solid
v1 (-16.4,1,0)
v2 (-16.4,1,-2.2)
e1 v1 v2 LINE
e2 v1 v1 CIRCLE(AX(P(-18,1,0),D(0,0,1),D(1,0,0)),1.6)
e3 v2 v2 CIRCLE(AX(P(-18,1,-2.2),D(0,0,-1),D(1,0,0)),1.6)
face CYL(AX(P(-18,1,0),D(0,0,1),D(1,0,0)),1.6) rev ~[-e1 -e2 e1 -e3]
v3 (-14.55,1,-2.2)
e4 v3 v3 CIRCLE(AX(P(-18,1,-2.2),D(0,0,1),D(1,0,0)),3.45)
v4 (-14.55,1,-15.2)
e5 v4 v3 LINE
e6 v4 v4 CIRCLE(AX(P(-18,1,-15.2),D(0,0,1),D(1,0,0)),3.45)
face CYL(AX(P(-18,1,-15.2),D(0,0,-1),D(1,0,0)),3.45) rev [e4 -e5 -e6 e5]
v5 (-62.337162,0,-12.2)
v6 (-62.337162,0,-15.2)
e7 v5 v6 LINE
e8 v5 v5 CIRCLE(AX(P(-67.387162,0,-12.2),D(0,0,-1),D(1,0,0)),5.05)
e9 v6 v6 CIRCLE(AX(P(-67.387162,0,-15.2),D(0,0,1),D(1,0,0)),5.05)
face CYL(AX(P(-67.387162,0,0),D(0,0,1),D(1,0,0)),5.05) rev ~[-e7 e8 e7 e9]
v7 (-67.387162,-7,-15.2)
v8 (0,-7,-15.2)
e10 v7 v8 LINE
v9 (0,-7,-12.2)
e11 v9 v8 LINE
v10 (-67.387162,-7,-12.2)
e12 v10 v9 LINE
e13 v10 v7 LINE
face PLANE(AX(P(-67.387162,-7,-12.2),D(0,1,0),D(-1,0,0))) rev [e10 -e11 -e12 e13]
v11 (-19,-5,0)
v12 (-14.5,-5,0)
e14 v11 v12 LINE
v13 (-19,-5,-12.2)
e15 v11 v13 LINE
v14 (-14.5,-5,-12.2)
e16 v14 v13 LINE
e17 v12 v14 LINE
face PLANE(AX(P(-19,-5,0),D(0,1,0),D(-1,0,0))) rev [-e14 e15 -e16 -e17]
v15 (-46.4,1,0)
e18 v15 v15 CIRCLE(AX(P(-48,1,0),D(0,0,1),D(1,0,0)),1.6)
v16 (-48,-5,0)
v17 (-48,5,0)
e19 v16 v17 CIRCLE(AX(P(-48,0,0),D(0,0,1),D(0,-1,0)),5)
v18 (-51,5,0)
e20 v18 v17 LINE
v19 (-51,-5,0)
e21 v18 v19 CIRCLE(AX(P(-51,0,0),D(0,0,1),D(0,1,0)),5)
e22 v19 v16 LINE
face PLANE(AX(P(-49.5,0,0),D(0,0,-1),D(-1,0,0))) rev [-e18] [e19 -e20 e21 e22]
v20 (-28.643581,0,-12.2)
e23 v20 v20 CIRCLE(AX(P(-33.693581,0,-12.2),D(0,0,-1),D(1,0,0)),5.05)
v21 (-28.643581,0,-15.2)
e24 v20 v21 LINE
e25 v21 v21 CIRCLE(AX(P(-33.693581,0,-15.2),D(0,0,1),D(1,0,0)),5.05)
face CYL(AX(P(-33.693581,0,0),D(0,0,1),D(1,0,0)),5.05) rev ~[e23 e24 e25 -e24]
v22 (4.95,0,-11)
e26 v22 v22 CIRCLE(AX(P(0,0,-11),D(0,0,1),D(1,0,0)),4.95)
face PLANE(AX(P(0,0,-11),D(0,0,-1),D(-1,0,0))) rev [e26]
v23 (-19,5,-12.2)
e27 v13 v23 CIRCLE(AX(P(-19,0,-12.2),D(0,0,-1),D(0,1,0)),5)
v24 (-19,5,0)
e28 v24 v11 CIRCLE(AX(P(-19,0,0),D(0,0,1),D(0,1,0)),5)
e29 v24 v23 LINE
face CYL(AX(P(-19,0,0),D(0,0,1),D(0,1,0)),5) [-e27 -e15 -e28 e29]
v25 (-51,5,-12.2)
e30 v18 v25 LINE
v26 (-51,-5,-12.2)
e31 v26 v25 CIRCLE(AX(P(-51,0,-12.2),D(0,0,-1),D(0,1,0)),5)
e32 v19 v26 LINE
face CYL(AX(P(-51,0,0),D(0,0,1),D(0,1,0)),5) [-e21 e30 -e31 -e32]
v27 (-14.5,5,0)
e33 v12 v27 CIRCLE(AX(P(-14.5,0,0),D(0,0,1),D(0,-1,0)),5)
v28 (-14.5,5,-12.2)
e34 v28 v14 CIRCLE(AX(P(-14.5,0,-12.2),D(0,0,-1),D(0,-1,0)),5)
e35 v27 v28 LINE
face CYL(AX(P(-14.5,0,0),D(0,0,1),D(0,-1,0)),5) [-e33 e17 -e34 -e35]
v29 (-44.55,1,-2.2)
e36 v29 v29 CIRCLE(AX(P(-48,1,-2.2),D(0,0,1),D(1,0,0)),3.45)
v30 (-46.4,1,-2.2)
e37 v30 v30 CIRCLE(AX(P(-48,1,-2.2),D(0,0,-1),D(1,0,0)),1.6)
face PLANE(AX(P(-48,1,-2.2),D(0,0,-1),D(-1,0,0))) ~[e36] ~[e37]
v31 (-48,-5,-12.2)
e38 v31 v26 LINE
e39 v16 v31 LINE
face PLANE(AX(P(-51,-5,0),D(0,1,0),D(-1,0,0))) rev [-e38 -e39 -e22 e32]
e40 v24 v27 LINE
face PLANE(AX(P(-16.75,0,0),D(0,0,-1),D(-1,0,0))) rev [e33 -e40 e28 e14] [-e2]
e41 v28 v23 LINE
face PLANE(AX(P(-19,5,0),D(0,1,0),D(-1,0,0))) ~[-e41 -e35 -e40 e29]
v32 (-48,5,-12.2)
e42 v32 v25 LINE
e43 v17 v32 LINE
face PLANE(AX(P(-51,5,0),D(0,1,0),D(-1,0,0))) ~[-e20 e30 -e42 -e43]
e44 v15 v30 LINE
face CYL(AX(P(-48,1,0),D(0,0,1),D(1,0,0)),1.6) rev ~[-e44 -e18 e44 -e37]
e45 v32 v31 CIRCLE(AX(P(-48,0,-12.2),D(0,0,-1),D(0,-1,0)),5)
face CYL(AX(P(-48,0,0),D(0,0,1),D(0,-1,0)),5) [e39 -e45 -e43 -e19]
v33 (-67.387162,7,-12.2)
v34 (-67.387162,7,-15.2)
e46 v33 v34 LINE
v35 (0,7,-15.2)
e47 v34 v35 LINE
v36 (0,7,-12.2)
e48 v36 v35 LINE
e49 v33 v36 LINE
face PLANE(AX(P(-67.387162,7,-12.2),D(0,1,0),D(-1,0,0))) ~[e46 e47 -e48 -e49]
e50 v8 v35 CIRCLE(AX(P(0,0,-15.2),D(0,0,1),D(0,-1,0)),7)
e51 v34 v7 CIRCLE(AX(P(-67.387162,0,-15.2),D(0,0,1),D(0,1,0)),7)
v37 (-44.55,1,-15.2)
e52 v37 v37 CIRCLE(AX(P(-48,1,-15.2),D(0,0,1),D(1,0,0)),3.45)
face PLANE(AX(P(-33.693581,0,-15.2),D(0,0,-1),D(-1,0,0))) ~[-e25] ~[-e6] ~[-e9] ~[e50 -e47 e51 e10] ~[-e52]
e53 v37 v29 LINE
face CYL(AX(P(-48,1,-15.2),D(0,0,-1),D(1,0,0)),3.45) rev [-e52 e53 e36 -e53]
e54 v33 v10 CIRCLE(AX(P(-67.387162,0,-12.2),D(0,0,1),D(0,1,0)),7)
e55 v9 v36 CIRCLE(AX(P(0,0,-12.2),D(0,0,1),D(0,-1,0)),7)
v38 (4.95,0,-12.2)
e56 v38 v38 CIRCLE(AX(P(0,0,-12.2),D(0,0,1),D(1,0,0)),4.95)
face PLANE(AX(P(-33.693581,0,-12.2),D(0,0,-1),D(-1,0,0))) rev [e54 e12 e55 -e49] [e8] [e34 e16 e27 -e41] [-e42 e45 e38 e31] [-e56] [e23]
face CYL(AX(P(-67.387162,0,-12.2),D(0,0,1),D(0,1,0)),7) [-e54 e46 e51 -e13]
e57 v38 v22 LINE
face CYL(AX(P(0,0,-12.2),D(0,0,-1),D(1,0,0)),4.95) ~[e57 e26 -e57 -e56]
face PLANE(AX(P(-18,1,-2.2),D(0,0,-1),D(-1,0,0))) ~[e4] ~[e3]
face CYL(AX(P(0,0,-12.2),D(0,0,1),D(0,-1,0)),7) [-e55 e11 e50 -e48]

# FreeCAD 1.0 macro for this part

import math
import FreeCAD as App
import Part
import Sketcher

doc = App.newDocument("Part")
body = doc.addObject("PartDesign::Body", "Body")

sketch1 = body.newObject("Sketcher::SketchObject", "Sketch")
sketch1.AttachmentSupport = (doc.getObject("XY_Plane"), [""])
sketch1.MapMode = "FlatFace"
sketch1.AttachmentOffset = App.Placement(App.Vector(0, 0, 12.2), App.Rotation())
sketch1.addGeometry(Part.ArcOfCircle(Part.Circle(App.Vector(-67, 0, 0), App.Vector(0, 0, 1), 7), math.radians(90), math.radians(270)), False)
sketch1.addGeometry(Part.LineSegment(App.Vector(-67, -7, 0), App.Vector(0, -7, 0)), False)
sketch1.addGeometry(Part.ArcOfCircle(Part.Circle(App.Vector(0, 0, 0), App.Vector(0, 0, 1), 7), math.radians(-90), math.radians(90)), False)
sketch1.addGeometry(Part.LineSegment(App.Vector(0, 7, 0), App.Vector(-67, 7, 0)), False)
sketch1.addConstraint(Sketcher.Constraint("Tangent", 0, 2, 1, 1))
sketch1.addConstraint(Sketcher.Constraint("Tangent", 1, 2, 2, 1))
sketch1.addConstraint(Sketcher.Constraint("Tangent", 2, 2, 3, 1))
sketch1.addConstraint(Sketcher.Constraint("Tangent", 3, 2, 0, 1))
sketch1.addConstraint(Sketcher.Constraint("Horizontal", 1))
sketch1.addConstraint(Sketcher.Constraint("Horizontal", 3))
sketch1.addConstraint(Sketcher.Constraint("Coincident", 2, 3, -1, 1))
sketch1.addConstraint(Sketcher.Constraint("Radius", 0, 7.0))
sketch1.addConstraint(Sketcher.Constraint("DistanceX", 1, 1, 1, 2, 67.387162))
pad1 = body.newObject("PartDesign::Pad", "Pad")
pad1.Profile = sketch1
pad1.Length = 3

sketch2 = body.newObject("Sketcher::SketchObject", "Sketch001")
sketch2.AttachmentSupport = (doc.getObject("XY_Plane"), [""])
sketch2.MapMode = "FlatFace"
sketch2.addGeometry(Part.ArcOfCircle(Part.Circle(App.Vector(-19, 0, 0), App.Vector(0, 0, 1), 5), math.radians(90), math.radians(270)), False)
sketch2.addGeometry(Part.LineSegment(App.Vector(-19, -5, 0), App.Vector(-14.5, -5, 0)), False)
sketch2.addGeometry(Part.ArcOfCircle(Part.Circle(App.Vector(-14.5, 0, 0), App.Vector(0, 0, 1), 5), math.radians(-90), math.radians(90)), False)
sketch2.addGeometry(Part.LineSegment(App.Vector(-14.5, 5, 0), App.Vector(-19, 5, 0)), False)
sketch2.addGeometry(Part.ArcOfCircle(Part.Circle(App.Vector(-51, 0, 0), App.Vector(0, 0, 1), 5), math.radians(90), math.radians(270)), False)
sketch2.addGeometry(Part.LineSegment(App.Vector(-51, -5, 0), App.Vector(-48, -5, 0)), False)
sketch2.addGeometry(Part.ArcOfCircle(Part.Circle(App.Vector(-48, 0, 0), App.Vector(0, 0, 1), 5), math.radians(-90), math.radians(90)), False)
sketch2.addGeometry(Part.LineSegment(App.Vector(-48, 5, 0), App.Vector(-51, 5, 0)), False)
sketch2.addConstraint(Sketcher.Constraint("Tangent", 0, 2, 1, 1))
sketch2.addConstraint(Sketcher.Constraint("Tangent", 1, 2, 2, 1))
sketch2.addConstraint(Sketcher.Constraint("Tangent", 2, 2, 3, 1))
sketch2.addConstraint(Sketcher.Constraint("Tangent", 3, 2, 0, 1))
sketch2.addConstraint(Sketcher.Constraint("Tangent", 4, 2, 5, 1))
sketch2.addConstraint(Sketcher.Constraint("Tangent", 5, 2, 6, 1))
sketch2.addConstraint(Sketcher.Constraint("Tangent", 6, 2, 7, 1))
sketch2.addConstraint(Sketcher.Constraint("Tangent", 7, 2, 4, 1))
sketch2.addConstraint(Sketcher.Constraint("Horizontal", 1))
sketch2.addConstraint(Sketcher.Constraint("Horizontal", 3))
sketch2.addConstraint(Sketcher.Constraint("Horizontal", 5))
sketch2.addConstraint(Sketcher.Constraint("Horizontal", 7))
sketch2.addConstraint(Sketcher.Constraint("Equal", 2, 4))
sketch2.addConstraint(Sketcher.Constraint("PointOnObject", 0, 3, -1))
sketch2.addConstraint(Sketcher.Constraint("PointOnObject", 4, 3, -1))
sketch2.addConstraint(Sketcher.Constraint("Radius", 0, 5.0))
sketch2.addConstraint(Sketcher.Constraint("DistanceX", 5, 1, 5, 2, 3.0))
sketch2.addConstraint(Sketcher.Constraint("DistanceX", 1, 1, 1, 2, 4.5))
sketch2.addConstraint(Sketcher.Constraint("DistanceX", 0, 3, -1, 1, 19.0))
sketch2.addConstraint(Sketcher.Constraint("DistanceX", 4, 3, -1, 1, 51.0))
pad2 = body.newObject("PartDesign::Pad", "Pad001")
pad2.Profile = sketch2
pad2.Length = 15.2

sketch3 = body.newObject("Sketcher::SketchObject", "Sketch002")
sketch3.AttachmentSupport = (doc.getObject("XY_Plane"), [""])
sketch3.MapMode = "FlatFace"
sketch3.addGeometry(Part.Circle(App.Vector(-33.7, 0, 0), App.Vector(0, 0, 1), 5), False)
sketch3.addGeometry(Part.Circle(App.Vector(-67.4, 0, 0), App.Vector(0, 0, 1), 5), False)
sketch3.addGeometry(Part.Circle(App.Vector(-18, 1, 0), App.Vector(0, 0, 1), 1.6), False)
sketch3.addGeometry(Part.Circle(App.Vector(-48, 1, 0), App.Vector(0, 0, 1), 1.6), False)
sketch3.addConstraint(Sketcher.Constraint("Equal", 0, 1))
sketch3.addConstraint(Sketcher.Constraint("Equal", 2, 3))
sketch3.addConstraint(Sketcher.Constraint("PointOnObject", 0, 3, -1))
sketch3.addConstraint(Sketcher.Constraint("PointOnObject", 1, 3, -1))
sketch3.addConstraint(Sketcher.Constraint("Horizontal", 2, 3, 3, 3))
sketch3.addConstraint(Sketcher.Constraint("Diameter", 0, 10.1))
sketch3.addConstraint(Sketcher.Constraint("Diameter", 2, 3.2))
sketch3.addConstraint(Sketcher.Constraint("DistanceX", 2, 3, -1, 1, 18.0))
sketch3.addConstraint(Sketcher.Constraint("DistanceY", -1, 1, 2, 3, 1.0))
sketch3.addConstraint(Sketcher.Constraint("DistanceX", 3, 3, -1, 1, 48.0))
sketch3.addConstraint(Sketcher.Constraint("DistanceX", 0, 3, -1, 1, 33.693581))
sketch3.addConstraint(Sketcher.Constraint("DistanceX", 1, 3, 0, 3, 33.693581))
pocket1 = body.newObject("PartDesign::Pocket", "Pocket")
pocket1.Profile = sketch3
pocket1.Length = 15.2
pocket1.Reversed = True

sketch4 = body.newObject("Sketcher::SketchObject", "Sketch003")
sketch4.AttachmentSupport = (doc.getObject("XY_Plane"), [""])
sketch4.MapMode = "FlatFace"
sketch4.AttachmentOffset = App.Placement(App.Vector(0, 0, 12.2), App.Rotation())
sketch4.addGeometry(Part.Circle(App.Vector(0, 0, 0), App.Vector(0, 0, 1), 5), False)
sketch4.addConstraint(Sketcher.Constraint("Coincident", 0, 3, -1, 1))
sketch4.addConstraint(Sketcher.Constraint("Diameter", 0, 9.9))
pad3 = body.newObject("PartDesign::Pad", "Pad002")
pad3.Profile = sketch4
pad3.Length = 1.2
pad3.Reversed = True

sketch5 = body.newObject("Sketcher::SketchObject", "Sketch004")
sketch5.AttachmentSupport = (doc.getObject("XY_Plane"), [""])
sketch5.MapMode = "FlatFace"
sketch5.AttachmentOffset = App.Placement(App.Vector(0, 0, 15.2), App.Rotation())
sketch5.addGeometry(Part.Circle(App.Vector(-18, 1, 0), App.Vector(0, 0, 1), 3.5), False)
sketch5.addGeometry(Part.Circle(App.Vector(-48, 1, 0), App.Vector(0, 0, 1), 3.5), False)
sketch5.addConstraint(Sketcher.Constraint("Equal", 0, 1))
sketch5.addConstraint(Sketcher.Constraint("Horizontal", 0, 3, 1, 3))
sketch5.addConstraint(Sketcher.Constraint("Diameter", 0, 6.9))
sketch5.addConstraint(Sketcher.Constraint("DistanceX", 0, 3, -1, 1, 18.0))
sketch5.addConstraint(Sketcher.Constraint("DistanceY", -1, 1, 0, 3, 1.0))
sketch5.addConstraint(Sketcher.Constraint("DistanceX", 1, 3, -1, 1, 48.0))
pocket2 = body.newObject("PartDesign::Pocket", "Pocket001")
pocket2.Profile = sketch5
pocket2.Length = 13
body2 = doc.addObject("PartDesign::Body", "Body001")
doc.recompute()

mirroring = doc.addObject("Part::Mirroring", "Mirroring")
mirroring.Source = body
mirroring.Base = App.Vector(0, 0, 0)
mirroring.Normal = App.Vector(0, 0, 1)
body2.BaseFeature = mirroring
doc.recompute()
body.Visibility = False
mirroring.Visibility = False

doc.recompute()
